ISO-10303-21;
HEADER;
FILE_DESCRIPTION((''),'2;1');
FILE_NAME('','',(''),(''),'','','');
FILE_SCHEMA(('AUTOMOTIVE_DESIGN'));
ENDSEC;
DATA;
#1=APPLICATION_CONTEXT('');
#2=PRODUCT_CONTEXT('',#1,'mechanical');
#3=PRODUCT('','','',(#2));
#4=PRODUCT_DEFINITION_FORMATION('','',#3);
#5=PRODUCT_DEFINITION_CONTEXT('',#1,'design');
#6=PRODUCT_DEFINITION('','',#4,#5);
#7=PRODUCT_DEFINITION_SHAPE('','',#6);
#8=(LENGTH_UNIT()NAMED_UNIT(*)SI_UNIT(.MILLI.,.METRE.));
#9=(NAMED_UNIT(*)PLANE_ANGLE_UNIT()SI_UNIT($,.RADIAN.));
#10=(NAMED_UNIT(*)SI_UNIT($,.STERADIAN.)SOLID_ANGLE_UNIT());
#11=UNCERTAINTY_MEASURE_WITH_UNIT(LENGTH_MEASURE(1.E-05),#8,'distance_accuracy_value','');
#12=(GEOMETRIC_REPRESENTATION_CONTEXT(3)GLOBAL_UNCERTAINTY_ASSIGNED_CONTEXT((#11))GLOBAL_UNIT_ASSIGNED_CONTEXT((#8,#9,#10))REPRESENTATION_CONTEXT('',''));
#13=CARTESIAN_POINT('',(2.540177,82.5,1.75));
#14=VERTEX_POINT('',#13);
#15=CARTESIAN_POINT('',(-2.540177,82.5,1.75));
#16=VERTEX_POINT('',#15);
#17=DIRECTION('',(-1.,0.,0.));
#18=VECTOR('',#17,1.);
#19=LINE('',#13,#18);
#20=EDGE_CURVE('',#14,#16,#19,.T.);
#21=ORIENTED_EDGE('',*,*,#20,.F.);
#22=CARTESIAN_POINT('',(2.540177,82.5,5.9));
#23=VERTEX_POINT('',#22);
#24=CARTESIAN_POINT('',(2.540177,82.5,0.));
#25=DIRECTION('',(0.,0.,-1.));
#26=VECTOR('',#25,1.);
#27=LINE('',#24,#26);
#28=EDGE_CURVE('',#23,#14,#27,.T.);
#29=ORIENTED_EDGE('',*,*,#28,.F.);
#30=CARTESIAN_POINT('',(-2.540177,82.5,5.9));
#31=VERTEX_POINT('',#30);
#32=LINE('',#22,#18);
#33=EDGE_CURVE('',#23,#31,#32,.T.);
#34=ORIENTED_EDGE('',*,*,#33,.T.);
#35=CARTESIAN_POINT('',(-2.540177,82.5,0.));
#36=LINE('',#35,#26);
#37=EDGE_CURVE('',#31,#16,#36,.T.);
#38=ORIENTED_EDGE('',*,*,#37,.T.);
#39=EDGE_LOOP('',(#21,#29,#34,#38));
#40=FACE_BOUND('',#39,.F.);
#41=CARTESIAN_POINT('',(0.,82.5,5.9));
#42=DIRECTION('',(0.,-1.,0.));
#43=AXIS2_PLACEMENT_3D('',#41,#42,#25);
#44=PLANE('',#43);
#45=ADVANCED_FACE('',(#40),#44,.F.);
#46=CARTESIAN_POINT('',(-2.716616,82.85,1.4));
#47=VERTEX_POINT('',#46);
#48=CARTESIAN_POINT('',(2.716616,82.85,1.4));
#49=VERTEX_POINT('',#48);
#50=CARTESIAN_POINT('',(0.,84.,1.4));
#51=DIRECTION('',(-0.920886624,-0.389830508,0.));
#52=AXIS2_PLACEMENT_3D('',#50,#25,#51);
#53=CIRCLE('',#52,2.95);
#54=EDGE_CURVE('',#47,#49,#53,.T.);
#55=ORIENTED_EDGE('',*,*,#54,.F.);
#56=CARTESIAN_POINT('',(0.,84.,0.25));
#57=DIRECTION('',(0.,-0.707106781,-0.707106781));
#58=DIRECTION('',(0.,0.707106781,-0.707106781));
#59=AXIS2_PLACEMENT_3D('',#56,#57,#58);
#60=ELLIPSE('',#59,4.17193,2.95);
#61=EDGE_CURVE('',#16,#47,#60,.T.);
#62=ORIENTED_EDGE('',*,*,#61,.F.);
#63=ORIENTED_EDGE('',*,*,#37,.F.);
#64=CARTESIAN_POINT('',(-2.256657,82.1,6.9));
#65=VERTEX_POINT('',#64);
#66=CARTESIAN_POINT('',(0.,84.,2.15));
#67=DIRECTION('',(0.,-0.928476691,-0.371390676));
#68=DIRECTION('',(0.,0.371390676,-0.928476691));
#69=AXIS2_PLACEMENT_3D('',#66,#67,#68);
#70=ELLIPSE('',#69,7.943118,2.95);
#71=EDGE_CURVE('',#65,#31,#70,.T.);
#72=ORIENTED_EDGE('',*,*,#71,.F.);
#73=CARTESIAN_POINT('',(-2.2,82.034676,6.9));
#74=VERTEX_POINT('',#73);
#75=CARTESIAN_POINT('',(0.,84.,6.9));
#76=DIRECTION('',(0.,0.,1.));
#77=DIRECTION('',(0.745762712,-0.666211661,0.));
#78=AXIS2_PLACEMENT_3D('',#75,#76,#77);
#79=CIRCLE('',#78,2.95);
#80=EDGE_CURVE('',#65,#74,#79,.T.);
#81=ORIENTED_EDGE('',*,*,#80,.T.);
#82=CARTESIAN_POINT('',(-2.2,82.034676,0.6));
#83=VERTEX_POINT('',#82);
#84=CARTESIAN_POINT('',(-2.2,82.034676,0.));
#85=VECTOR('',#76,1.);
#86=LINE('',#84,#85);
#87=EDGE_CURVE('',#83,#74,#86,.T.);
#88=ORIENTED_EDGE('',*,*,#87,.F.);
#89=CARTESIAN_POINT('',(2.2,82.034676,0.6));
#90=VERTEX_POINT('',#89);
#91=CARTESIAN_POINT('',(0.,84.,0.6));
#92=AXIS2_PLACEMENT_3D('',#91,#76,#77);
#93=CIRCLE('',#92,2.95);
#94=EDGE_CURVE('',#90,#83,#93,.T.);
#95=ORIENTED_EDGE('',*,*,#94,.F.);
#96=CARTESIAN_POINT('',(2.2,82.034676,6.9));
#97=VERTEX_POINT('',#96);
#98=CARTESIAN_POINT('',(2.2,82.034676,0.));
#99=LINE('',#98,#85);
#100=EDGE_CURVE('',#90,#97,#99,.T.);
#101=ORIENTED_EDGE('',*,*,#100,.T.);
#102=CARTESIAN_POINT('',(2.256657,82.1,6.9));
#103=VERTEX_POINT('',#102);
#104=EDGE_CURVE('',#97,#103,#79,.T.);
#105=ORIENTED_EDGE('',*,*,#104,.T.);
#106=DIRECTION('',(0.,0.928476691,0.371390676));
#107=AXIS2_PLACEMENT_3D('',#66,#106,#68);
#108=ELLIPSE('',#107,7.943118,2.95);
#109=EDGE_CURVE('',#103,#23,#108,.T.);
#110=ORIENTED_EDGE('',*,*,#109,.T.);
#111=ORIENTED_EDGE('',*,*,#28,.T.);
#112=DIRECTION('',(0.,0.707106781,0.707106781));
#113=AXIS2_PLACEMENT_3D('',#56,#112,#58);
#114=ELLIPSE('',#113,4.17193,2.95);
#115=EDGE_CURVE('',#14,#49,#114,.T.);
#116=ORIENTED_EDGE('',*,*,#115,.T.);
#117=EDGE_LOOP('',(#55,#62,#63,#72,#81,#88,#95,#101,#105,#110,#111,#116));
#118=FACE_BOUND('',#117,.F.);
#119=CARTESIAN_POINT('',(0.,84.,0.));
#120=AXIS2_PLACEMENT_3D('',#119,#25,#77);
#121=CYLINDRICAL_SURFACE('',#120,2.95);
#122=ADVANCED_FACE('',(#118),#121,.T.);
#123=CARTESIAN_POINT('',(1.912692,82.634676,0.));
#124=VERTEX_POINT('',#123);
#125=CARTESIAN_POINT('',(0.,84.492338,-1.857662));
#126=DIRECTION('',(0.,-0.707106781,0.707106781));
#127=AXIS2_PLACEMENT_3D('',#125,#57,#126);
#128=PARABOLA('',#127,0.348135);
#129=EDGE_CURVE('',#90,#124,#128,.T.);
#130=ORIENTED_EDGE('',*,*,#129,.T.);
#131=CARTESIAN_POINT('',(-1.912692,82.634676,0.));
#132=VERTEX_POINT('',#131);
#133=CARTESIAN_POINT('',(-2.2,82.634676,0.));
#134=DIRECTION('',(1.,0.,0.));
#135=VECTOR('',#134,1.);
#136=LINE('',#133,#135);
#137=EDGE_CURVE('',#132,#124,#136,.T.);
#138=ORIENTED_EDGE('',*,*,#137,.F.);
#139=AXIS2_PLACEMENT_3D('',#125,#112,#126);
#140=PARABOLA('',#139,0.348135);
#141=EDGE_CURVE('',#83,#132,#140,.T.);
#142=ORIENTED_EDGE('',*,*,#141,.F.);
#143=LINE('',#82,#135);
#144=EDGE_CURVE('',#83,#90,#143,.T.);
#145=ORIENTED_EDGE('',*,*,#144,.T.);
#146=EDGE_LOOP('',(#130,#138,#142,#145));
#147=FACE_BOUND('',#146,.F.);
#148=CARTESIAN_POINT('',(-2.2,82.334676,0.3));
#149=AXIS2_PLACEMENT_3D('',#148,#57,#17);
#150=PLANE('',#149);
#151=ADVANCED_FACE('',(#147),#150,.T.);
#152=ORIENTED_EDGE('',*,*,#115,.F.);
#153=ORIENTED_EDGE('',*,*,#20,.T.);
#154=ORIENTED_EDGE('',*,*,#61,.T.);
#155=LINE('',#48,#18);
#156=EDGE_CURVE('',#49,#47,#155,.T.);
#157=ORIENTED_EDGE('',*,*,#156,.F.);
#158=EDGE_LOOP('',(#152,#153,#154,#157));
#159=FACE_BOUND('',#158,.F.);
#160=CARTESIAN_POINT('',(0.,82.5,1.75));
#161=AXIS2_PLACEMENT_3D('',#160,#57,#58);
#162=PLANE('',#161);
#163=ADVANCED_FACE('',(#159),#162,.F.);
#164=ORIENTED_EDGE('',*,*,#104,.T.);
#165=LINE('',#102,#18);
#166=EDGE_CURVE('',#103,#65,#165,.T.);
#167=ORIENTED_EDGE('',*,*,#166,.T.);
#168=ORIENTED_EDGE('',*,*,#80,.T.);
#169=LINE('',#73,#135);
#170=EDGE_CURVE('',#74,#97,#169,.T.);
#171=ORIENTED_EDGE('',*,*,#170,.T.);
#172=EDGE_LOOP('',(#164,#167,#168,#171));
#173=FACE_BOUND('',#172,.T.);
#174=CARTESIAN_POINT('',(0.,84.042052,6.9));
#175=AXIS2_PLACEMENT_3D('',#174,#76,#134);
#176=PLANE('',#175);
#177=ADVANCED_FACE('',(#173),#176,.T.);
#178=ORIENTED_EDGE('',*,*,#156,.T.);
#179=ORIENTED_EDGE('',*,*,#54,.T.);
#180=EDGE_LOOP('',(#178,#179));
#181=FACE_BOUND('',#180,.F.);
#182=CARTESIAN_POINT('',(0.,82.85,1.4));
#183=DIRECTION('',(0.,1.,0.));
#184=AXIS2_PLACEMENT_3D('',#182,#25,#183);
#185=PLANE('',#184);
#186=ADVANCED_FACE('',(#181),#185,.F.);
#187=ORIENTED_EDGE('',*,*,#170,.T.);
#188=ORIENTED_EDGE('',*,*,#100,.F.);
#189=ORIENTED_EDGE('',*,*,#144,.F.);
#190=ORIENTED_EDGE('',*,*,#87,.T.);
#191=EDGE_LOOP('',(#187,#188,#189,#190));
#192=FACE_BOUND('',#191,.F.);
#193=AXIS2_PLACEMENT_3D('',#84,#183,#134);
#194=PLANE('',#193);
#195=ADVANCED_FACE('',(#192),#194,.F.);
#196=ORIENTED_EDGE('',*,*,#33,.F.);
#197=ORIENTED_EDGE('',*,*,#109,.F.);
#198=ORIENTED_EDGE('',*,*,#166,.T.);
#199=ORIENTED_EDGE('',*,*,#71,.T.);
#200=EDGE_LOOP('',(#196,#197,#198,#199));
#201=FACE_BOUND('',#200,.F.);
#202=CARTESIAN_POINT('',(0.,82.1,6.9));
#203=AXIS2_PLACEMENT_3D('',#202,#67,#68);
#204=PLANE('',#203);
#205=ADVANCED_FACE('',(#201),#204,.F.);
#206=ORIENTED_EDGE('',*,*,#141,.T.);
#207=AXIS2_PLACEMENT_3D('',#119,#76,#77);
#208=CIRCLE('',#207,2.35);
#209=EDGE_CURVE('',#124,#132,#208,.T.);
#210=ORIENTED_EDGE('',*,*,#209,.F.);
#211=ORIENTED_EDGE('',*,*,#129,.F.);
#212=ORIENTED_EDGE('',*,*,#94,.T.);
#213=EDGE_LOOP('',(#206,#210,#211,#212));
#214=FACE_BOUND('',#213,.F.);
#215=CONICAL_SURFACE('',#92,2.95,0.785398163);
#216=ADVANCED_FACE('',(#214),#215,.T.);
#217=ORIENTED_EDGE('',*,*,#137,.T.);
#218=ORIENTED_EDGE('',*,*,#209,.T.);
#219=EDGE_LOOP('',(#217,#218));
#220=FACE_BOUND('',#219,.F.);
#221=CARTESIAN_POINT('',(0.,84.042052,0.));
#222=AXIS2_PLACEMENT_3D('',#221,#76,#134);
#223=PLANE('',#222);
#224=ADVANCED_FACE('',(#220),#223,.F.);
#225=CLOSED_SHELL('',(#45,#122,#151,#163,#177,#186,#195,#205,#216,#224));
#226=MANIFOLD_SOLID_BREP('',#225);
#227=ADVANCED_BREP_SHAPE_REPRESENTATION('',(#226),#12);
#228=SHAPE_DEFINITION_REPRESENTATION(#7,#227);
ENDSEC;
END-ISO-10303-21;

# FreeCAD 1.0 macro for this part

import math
import FreeCAD as App
import Part
import Sketcher

V = App.Vector
Q = App.Units.Quantity


def edges_at(feature, points):
    """Names of the edges that pass closest to the given points."""
    edges = feature.Shape.Edges
    near = lambda p: min(range(len(edges)), key=lambda i: edges[i].distToShape(Part.Vertex(*p))[0])
    return sorted({f"Edge{near(p) + 1}" for p in points})

doc = App.newDocument("Part")
params = doc.addObject("Spreadsheet::Sheet", "Params")
for row, (alias, value) in enumerate([
    ("sketch1_radius", "2.95 mm"),
    ("sketch1_width", "4.4 mm"),
    ("pad1_length", "6.9 mm"),
    ("sketch2_width", "6.9 mm"),
    ("sketch2_height", "5.5 mm"),
    ("sketch2_width2", "6.15 mm"),
    ("sketch2_height2", "4.15 mm"),
    ("chamfer_size", "0.6 mm"),
], start=1):
    params.set(f"A{row}", alias)
    params.set(f"B{row}", "=" + value)
    params.setAlias(f"B{row}", alias)

body = doc.addObject("PartDesign::Body", "Body")

sketch1 = body.newObject("Sketcher::SketchObject", "Sketch")
sketch1.AttachmentSupport = (doc.getObject("XY_Plane"), [""])
sketch1.MapMode = "FlatFace"
sketch1.addGeometry(Part.ArcOfCircle(Part.Circle(V(0, 0, 0), V(0, 0, 1), 3), math.radians(-42), math.radians(222)), False)
sketch1.addGeometry(Part.LineSegment(V(-2.2, -2, 0), V(2.2, -2, 0)), False)
sketch1.addConstraint(Sketcher.Constraint("Coincident", 0, 1, 1, 2))
sketch1.addConstraint(Sketcher.Constraint("Coincident", 1, 1, 0, 2))
sketch1.addConstraint(Sketcher.Constraint("Horizontal", 1))
sketch1.addConstraint(Sketcher.Constraint("Coincident", 0, 3, -1, 1))
sketch1.addConstraint(Sketcher.Constraint("Radius", 0, 2.95))
sketch1.addConstraint(Sketcher.Constraint("DistanceX", 1, 1, 1, 2, 4.4))
sketch1.setExpression("Constraints[4]", "Params.sketch1_radius")
sketch1.setExpression("Constraints[5]", "Params.sketch1_width")
pad1 = body.newObject("PartDesign::Pad", "Pad")
pad1.Profile = sketch1
pad1.setExpression("Length", "Params.pad1_length")

sketch2 = body.newObject("Sketcher::SketchObject", "Sketch001")
sketch2.AttachmentSupport = (doc.getObject("YZ_Plane"), [""])
sketch2.MapMode = "FlatFace"
sketch2.addGeometry(Part.LineSegment(V(-1.9, 6.9, 0), V(-1.5, 5.9, 0)), False)
sketch2.addGeometry(Part.LineSegment(V(-1.5, 5.9, 0), V(-1.5, 1.75, 0)), False)
sketch2.addGeometry(Part.LineSegment(V(-1.5, 1.75, 0), V(-1.15, 1.4, 0)), False)
sketch2.addGeometry(Part.LineSegment(V(-1.15, 1.4, 0), V(5, 1.4, 0)), False)
sketch2.addGeometry(Part.LineSegment(V(5, 1.4, 0), V(5, 6.9, 0)), False)
sketch2.addGeometry(Part.LineSegment(V(5, 6.9, 0), V(-1.9, 6.9, 0)), False)
sketch2.addConstraint(Sketcher.Constraint("Coincident", 0, 2, 1, 1))
sketch2.addConstraint(Sketcher.Constraint("Coincident", 1, 2, 2, 1))
sketch2.addConstraint(Sketcher.Constraint("Coincident", 2, 2, 3, 1))
sketch2.addConstraint(Sketcher.Constraint("Coincident", 3, 2, 4, 1))
sketch2.addConstraint(Sketcher.Constraint("Coincident", 4, 2, 5, 1))
sketch2.addConstraint(Sketcher.Constraint("Coincident", 5, 2, 0, 1))
sketch2.addConstraint(Sketcher.Constraint("Vertical", 1))
sketch2.addConstraint(Sketcher.Constraint("Horizontal", 3))
sketch2.addConstraint(Sketcher.Constraint("Vertical", 4))
sketch2.addConstraint(Sketcher.Constraint("Horizontal", 5))
sketch2.addConstraint(Sketcher.Constraint("Angle", 2, Q("-45 deg")))
sketch2.addConstraint(Sketcher.Constraint("DistanceX", 5, 2, 5, 1, 6.9))
sketch2.addConstraint(Sketcher.Constraint("DistanceY", 4, 1, 4, 2, 5.5))
sketch2.addConstraint(Sketcher.Constraint("DistanceX", -1, 1, 3, 2, 5.0))
sketch2.addConstraint(Sketcher.Constraint("DistanceY", 0, 2, 4, 2, 1.0))
sketch2.addConstraint(Sketcher.Constraint("DistanceX", 3, 1, 3, 2, 6.15))
sketch2.addConstraint(Sketcher.Constraint("DistanceY", 1, 2, 1, 1, 4.15))
sketch2.addConstraint(Sketcher.Constraint("DistanceY", -1, 1, 0, 2, 5.9))
sketch2.setExpression("Constraints[11]", "Params.sketch2_width")
sketch2.setExpression("Constraints[12]", "Params.sketch2_height")
sketch2.setExpression("Constraints[15]", "Params.sketch2_width2")
sketch2.setExpression("Constraints[16]", "Params.sketch2_height2")
pocket1 = body.newObject("PartDesign::Pocket", "Pocket")
pocket1.Profile = sketch2
pocket1.Type = "ThroughAll"
pocket1.Midplane = True
doc.recompute()

chamfer = body.newObject("PartDesign::Chamfer", "Chamfer")
chamfer.Base = (pocket1, edges_at(pocket1, [(0, 2.95, 0), (0, -1.965, 0)]))
chamfer.setExpression("Size", "Params.chamfer_size")
body2 = doc.addObject("PartDesign::Body", "Body001")
doc.recompute()

body.Placement = App.Placement(V(0, 78, 0), App.Rotation(V(0, 0, 1), 0))
boolean = body2.newObject("PartDesign::Boolean", "Boolean")
boolean.Type = "Fuse"
boolean.addObjects([body])
body3 = doc.addObject("PartDesign::Body", "Body002")
doc.recompute()

body2.Placement = App.Placement(V(0, -78, 0), App.Rotation(V(0, 0, 1), 0))
boolean2 = body3.newObject("PartDesign::Boolean", "Boolean001")
boolean2.Type = "Fuse"
boolean2.addObjects([body2])
body4 = doc.addObject("PartDesign::Body", "Body003")
doc.recompute()

body3.Placement = App.Placement(V(0, 84, 0), App.Rotation(V(0, 0, 1), 0))
boolean3 = body4.newObject("PartDesign::Boolean", "Boolean002")
boolean3.Type = "Fuse"
boolean3.addObjects([body3])

doc.recompute()
